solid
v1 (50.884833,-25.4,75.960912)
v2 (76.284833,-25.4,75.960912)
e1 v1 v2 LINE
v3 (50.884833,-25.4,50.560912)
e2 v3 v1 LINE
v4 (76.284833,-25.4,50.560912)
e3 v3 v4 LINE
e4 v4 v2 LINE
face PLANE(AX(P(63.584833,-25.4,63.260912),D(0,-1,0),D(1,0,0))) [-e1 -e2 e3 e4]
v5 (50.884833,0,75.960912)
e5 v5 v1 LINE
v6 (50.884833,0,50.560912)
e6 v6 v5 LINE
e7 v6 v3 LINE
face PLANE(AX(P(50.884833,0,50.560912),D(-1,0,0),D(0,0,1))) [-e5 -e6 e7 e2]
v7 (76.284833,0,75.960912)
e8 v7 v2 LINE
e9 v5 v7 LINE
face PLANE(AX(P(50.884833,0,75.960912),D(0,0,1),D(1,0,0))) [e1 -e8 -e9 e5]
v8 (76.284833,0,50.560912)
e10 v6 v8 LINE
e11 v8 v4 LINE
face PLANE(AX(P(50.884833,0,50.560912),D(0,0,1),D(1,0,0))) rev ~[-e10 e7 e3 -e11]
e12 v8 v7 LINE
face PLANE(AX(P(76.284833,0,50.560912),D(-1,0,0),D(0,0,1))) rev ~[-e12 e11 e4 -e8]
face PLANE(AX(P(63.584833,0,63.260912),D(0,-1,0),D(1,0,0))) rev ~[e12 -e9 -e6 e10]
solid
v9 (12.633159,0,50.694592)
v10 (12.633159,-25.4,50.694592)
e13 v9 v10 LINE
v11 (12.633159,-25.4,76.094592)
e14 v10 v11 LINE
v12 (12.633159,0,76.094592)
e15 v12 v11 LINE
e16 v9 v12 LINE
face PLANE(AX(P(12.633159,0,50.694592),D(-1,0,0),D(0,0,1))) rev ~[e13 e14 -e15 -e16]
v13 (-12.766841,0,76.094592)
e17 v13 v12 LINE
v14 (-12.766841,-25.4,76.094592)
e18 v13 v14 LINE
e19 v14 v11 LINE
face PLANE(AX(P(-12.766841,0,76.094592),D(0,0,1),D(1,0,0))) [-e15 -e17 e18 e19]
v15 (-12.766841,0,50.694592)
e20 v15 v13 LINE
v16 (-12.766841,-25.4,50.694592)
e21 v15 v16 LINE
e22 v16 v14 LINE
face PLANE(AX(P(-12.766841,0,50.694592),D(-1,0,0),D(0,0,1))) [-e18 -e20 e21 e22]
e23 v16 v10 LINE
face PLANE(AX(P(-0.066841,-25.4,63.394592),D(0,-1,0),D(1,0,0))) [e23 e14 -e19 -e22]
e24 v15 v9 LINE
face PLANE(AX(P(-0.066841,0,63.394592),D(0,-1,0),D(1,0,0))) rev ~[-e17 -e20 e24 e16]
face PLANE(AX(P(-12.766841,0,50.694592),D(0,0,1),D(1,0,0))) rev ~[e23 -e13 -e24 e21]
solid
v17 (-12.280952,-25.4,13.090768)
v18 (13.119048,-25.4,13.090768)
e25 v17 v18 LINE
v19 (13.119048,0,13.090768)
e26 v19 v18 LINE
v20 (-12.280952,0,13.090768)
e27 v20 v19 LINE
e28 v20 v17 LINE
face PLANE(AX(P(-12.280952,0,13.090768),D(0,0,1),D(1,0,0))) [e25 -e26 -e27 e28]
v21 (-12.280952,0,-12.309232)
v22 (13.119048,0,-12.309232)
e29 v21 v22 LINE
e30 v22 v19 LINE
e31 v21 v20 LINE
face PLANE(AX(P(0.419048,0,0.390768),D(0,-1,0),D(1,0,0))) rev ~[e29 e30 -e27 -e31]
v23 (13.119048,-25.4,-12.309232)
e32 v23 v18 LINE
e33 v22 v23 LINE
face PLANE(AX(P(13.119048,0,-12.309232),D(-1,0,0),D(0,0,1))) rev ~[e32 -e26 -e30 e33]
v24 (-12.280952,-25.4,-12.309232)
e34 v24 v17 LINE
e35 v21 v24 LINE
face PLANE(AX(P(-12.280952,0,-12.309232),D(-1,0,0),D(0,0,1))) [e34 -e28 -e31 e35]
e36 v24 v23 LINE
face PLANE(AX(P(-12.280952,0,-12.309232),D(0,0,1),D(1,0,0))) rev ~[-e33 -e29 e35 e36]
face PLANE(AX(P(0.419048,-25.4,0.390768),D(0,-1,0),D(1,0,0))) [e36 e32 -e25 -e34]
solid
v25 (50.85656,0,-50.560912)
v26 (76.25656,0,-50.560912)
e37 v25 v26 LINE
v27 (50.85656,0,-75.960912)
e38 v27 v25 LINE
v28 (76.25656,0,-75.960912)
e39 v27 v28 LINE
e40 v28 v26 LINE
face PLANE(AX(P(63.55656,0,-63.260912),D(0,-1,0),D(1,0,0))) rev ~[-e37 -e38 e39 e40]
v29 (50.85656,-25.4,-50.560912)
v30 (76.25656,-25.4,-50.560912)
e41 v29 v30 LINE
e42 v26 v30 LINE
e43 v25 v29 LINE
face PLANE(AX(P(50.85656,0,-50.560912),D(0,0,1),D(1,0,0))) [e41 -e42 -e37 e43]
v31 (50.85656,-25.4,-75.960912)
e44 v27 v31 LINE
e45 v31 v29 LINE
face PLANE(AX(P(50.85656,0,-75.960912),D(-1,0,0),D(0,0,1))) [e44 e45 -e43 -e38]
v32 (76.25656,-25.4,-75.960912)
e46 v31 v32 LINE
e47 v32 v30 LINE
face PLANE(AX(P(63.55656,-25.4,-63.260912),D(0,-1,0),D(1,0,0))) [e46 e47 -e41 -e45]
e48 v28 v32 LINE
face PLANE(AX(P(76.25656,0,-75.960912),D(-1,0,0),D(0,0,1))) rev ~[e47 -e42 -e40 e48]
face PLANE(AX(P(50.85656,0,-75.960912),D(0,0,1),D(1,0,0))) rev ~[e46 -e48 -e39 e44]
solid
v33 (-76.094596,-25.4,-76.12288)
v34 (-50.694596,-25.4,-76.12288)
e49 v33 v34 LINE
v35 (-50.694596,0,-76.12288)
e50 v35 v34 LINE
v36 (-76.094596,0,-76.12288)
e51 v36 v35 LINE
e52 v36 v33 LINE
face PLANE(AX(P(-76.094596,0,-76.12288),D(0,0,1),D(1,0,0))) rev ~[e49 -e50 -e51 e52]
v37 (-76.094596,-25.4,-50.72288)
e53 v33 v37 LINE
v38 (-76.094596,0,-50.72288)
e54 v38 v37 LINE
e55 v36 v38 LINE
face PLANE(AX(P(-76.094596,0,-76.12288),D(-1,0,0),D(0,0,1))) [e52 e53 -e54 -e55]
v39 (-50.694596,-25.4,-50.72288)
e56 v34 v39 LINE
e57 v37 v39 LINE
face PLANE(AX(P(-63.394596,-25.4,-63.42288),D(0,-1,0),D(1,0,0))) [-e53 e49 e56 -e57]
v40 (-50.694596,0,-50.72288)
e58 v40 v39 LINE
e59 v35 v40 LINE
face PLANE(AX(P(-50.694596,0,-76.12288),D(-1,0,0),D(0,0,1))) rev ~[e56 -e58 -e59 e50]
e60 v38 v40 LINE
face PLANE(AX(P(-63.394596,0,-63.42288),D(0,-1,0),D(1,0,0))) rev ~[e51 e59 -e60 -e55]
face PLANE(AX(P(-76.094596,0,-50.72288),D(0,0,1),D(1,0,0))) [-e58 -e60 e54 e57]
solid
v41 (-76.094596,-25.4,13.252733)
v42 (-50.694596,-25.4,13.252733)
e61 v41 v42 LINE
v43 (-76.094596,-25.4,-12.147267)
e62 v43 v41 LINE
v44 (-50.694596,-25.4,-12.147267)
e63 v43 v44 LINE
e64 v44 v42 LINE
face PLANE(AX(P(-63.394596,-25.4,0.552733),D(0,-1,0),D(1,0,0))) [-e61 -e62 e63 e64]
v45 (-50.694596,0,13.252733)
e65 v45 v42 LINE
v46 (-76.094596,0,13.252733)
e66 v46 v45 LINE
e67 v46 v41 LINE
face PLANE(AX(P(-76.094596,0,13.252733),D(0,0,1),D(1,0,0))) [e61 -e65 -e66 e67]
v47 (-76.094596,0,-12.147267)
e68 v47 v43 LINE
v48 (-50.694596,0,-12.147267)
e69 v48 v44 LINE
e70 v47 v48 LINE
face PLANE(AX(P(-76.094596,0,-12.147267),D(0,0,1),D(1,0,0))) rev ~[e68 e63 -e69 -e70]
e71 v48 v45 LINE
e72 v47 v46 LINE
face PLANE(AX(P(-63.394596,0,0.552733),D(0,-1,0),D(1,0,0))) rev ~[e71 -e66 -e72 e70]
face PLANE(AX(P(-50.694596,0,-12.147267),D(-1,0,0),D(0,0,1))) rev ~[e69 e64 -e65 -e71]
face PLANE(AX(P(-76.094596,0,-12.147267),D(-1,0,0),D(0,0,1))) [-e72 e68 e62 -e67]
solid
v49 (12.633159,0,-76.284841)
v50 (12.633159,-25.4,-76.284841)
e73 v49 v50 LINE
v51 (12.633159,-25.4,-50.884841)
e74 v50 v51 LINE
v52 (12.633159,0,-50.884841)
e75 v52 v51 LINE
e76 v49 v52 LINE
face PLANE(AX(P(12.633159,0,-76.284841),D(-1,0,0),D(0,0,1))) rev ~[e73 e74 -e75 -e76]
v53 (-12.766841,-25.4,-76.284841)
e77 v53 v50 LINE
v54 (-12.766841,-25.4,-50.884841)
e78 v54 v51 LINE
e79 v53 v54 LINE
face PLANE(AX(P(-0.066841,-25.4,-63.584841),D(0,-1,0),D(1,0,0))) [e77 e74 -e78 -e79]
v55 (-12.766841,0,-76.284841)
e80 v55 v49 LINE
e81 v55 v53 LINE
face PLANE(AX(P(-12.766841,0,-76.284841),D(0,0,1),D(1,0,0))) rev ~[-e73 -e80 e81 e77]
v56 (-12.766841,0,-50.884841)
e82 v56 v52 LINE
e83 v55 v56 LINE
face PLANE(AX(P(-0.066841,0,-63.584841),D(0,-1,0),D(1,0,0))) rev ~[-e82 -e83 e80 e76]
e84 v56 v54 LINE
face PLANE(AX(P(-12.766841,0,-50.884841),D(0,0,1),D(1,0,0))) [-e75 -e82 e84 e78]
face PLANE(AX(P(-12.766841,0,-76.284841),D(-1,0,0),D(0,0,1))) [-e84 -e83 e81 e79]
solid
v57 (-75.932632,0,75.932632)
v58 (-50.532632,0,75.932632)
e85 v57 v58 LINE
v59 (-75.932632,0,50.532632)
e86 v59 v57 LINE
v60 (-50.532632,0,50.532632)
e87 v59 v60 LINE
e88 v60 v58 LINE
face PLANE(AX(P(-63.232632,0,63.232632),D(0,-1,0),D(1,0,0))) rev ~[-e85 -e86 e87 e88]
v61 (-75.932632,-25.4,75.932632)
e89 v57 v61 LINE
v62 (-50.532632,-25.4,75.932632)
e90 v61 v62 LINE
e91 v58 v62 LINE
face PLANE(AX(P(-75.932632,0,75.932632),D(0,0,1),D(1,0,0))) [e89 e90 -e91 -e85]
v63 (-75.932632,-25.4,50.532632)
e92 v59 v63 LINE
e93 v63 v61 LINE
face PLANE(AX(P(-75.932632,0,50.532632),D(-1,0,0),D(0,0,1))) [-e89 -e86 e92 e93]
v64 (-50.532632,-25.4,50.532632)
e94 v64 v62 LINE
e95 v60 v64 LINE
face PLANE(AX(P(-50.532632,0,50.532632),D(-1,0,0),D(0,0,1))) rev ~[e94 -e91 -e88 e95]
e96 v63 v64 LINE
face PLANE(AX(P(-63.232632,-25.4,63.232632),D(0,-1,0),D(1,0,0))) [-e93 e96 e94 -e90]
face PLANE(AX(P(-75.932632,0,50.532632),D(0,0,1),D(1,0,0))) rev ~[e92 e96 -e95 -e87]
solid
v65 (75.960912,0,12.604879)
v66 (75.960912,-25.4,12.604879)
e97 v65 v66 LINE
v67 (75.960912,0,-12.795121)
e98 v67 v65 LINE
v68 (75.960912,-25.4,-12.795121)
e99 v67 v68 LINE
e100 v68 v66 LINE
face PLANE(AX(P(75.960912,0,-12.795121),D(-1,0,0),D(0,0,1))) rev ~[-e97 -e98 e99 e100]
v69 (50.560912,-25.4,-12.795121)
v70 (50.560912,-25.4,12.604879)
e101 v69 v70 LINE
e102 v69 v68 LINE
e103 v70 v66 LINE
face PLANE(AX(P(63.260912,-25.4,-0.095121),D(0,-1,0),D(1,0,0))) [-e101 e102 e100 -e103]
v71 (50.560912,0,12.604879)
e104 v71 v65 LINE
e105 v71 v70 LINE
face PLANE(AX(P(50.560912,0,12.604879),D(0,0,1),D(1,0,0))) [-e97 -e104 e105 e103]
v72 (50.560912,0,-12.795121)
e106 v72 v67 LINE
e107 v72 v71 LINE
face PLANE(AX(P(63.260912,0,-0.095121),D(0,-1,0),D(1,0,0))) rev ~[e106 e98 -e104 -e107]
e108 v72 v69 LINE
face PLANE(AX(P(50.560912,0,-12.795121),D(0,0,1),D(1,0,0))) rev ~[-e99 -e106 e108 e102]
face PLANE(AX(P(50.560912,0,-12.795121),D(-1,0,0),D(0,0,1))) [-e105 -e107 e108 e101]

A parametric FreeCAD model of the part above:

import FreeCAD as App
import Part
import Sketcher
from FreeCAD import Vector
Q = App.Units.Quantity


def add_polygon(sketch, points):
    """Adds a closed chain of lines whose ends are joined by coincident constraints."""
    first, n = sketch.GeometryCount, len(points)
    for a, b in zip(points, points[1:] + points[:1]):
        sketch.addGeometry(Part.LineSegment(App.Vector(*a, 0), App.Vector(*b, 0)), False)
    for i in range(n):
        sketch.addConstraint(Sketcher.Constraint("Coincident", first + i, 2, first + (i + 1) % n, 1))

doc = App.newDocument("Part")
body = doc.addObject("PartDesign::Body", "Body")
body.AllowCompound = True

# Sketch on XZ plane
sketch1 = body.newObject("Sketcher::SketchObject", "Sketch")
sketch1.AttachmentSupport = (doc.getObject("XZ_Plane"), [""])
sketch1.MapMode = "FlatFace"
add_polygon(sketch1, [(-76, 76), (-76, 51), (-51, 51), (-51, 76)])  # lines 0-3
add_polygon(sketch1, [(-76, -51), (-76, -76), (-51, -76), (-51, -51)])  # lines 4-7
add_polygon(sketch1, [(-13, 76), (-13, 51), (13, 51), (13, 76)])  # lines 8-11
add_polygon(sketch1, [(-13, -51), (-13, -76), (13, -76), (13, -51)])  # lines 12-15
add_polygon(sketch1, [(-76, 13), (-76, -12), (-51, -12), (-51, 13)])  # lines 16-19
add_polygon(sketch1, [(51, 13), (51, -13), (76, -13), (76, 13)])  # lines 20-23
add_polygon(sketch1, [(51, 76), (51, 51), (76, 51), (76, 76)])  # lines 24-27
add_polygon(sketch1, [(-12, 13), (-12, -12), (13, -12), (13, 13)])  # lines 28-31
add_polygon(sketch1, [(51, -51), (51, -76), (76, -76), (76, -51)])  # lines 32-35
sketch1.addConstraint([
    Sketcher.Constraint("Vertical", 0),
    Sketcher.Constraint("Horizontal", 1),
    Sketcher.Constraint("Vertical", 2),
    Sketcher.Constraint("Horizontal", 3),
    Sketcher.Constraint("Vertical", 4),
    Sketcher.Constraint("Horizontal", 5),
    Sketcher.Constraint("Vertical", 6),
    Sketcher.Constraint("Horizontal", 7),
    Sketcher.Constraint("Vertical", 8),
    Sketcher.Constraint("Horizontal", 9),
    Sketcher.Constraint("Vertical", 10),
    Sketcher.Constraint("Horizontal", 11),
    Sketcher.Constraint("Vertical", 12),
    Sketcher.Constraint("Horizontal", 13),
    Sketcher.Constraint("Vertical", 14),
    Sketcher.Constraint("Horizontal", 15),
    Sketcher.Constraint("Vertical", 16),
    Sketcher.Constraint("Horizontal", 17),
    Sketcher.Constraint("Vertical", 18),
    Sketcher.Constraint("Horizontal", 19),
    Sketcher.Constraint("Vertical", 20),
    Sketcher.Constraint("Horizontal", 21),
    Sketcher.Constraint("Vertical", 22),
    Sketcher.Constraint("Horizontal", 23),
    Sketcher.Constraint("Vertical", 24),
    Sketcher.Constraint("Horizontal", 25),
    Sketcher.Constraint("Vertical", 26),
    Sketcher.Constraint("Horizontal", 27),
    Sketcher.Constraint("Vertical", 28),
    Sketcher.Constraint("Horizontal", 29),
    Sketcher.Constraint("Vertical", 30),
    Sketcher.Constraint("Horizontal", 31),
    Sketcher.Constraint("Vertical", 32),
    Sketcher.Constraint("Horizontal", 33),
    Sketcher.Constraint("Vertical", 34),
    Sketcher.Constraint("Horizontal", 35),
    Sketcher.Constraint("Vertical", 11, 2, 12, 2),
    Sketcher.Constraint("Vertical", 10, 2, 13, 2),
    Sketcher.Constraint("Vertical", 7, 2, 16, 2),
    Sketcher.Constraint("Vertical", 6, 2, 17, 2),
    Sketcher.Constraint("Equal", 3, 5),
    Sketcher.Constraint("Equal", 7, 9),
    Sketcher.Constraint("Equal", 19, 21),
    Sketcher.Constraint("Equal", 23, 25),
    Sketcher.Constraint("Equal", 27, 29),
    Sketcher.Constraint("Equal", 31, 33),
    Sketcher.Constraint("Equal", 35, 0),
    Sketcher.Constraint("Equal", 2, 4),
    Sketcher.Constraint("Equal", 6, 8),
    Sketcher.Constraint("Equal", 10, 12),
    Sketcher.Constraint("Equal", 14, 16),
    Sketcher.Constraint("Equal", 18, 20),
    Sketcher.Constraint("Equal", 22, 24),
    Sketcher.Constraint("Equal", 26, 28),
    Sketcher.Constraint("Equal", 30, 32),
    Sketcher.Constraint("DistanceX", 1, 1, 1, 2, Q("1 in")),
    Sketcher.Constraint("DistanceY", 16, 2, 0, 2, Q("62.679899 mm")),
    Sketcher.Constraint("DistanceX", 13, 2, 32, 2, Q("38.223401 mm")),
    Sketcher.Constraint("DistanceX", 0, 2, -1, 1, Q("75.932632 mm")),
    Sketcher.Constraint("DistanceY", -1, 1, 2, 2, Q("75.932632 mm")),
    Sketcher.Constraint("DistanceY", 4, 2, -1, 1, Q("76.12288 mm")),
    Sketcher.Constraint("DistanceX", 8, 2, -1, 1, Q("12.766841 mm")),
    Sketcher.Constraint("DistanceY", 12, 2, -1, 1, Q("76.284841 mm")),
    Sketcher.Constraint("DistanceY", 20, 2, -1, 1, Q("12.795121 mm")),
    Sketcher.Constraint("DistanceX", -1, 1, 21, 2, Q("75.960912 mm")),
    Sketcher.Constraint("DistanceY", -1, 1, 26, 2, Q("75.960912 mm")),
    Sketcher.Constraint("DistanceX", 28, 2, -1, 1, Q("12.280952 mm")),
    Sketcher.Constraint("DistanceY", -1, 1, 30, 2, Q("13.090768 mm")),
    Sketcher.Constraint("DistanceY", 32, 2, -1, 1, Q("75.960912 mm")),
    Sketcher.Constraint("DistanceY", 1, 2, 8, 2, Q("0.16196 mm")),
    Sketcher.Constraint("DistanceX", 23, 2, 24, 2, Q("0.323921 mm")),
    Sketcher.Constraint("DistanceX", 4, 2, -1, 1, Q("76.094596 mm")),
])
pad1 = body.newObject("PartDesign::Pad", "Pad")
pad1.Profile = sketch1
pad1.Length = Q("1 in")

doc.recompute()
